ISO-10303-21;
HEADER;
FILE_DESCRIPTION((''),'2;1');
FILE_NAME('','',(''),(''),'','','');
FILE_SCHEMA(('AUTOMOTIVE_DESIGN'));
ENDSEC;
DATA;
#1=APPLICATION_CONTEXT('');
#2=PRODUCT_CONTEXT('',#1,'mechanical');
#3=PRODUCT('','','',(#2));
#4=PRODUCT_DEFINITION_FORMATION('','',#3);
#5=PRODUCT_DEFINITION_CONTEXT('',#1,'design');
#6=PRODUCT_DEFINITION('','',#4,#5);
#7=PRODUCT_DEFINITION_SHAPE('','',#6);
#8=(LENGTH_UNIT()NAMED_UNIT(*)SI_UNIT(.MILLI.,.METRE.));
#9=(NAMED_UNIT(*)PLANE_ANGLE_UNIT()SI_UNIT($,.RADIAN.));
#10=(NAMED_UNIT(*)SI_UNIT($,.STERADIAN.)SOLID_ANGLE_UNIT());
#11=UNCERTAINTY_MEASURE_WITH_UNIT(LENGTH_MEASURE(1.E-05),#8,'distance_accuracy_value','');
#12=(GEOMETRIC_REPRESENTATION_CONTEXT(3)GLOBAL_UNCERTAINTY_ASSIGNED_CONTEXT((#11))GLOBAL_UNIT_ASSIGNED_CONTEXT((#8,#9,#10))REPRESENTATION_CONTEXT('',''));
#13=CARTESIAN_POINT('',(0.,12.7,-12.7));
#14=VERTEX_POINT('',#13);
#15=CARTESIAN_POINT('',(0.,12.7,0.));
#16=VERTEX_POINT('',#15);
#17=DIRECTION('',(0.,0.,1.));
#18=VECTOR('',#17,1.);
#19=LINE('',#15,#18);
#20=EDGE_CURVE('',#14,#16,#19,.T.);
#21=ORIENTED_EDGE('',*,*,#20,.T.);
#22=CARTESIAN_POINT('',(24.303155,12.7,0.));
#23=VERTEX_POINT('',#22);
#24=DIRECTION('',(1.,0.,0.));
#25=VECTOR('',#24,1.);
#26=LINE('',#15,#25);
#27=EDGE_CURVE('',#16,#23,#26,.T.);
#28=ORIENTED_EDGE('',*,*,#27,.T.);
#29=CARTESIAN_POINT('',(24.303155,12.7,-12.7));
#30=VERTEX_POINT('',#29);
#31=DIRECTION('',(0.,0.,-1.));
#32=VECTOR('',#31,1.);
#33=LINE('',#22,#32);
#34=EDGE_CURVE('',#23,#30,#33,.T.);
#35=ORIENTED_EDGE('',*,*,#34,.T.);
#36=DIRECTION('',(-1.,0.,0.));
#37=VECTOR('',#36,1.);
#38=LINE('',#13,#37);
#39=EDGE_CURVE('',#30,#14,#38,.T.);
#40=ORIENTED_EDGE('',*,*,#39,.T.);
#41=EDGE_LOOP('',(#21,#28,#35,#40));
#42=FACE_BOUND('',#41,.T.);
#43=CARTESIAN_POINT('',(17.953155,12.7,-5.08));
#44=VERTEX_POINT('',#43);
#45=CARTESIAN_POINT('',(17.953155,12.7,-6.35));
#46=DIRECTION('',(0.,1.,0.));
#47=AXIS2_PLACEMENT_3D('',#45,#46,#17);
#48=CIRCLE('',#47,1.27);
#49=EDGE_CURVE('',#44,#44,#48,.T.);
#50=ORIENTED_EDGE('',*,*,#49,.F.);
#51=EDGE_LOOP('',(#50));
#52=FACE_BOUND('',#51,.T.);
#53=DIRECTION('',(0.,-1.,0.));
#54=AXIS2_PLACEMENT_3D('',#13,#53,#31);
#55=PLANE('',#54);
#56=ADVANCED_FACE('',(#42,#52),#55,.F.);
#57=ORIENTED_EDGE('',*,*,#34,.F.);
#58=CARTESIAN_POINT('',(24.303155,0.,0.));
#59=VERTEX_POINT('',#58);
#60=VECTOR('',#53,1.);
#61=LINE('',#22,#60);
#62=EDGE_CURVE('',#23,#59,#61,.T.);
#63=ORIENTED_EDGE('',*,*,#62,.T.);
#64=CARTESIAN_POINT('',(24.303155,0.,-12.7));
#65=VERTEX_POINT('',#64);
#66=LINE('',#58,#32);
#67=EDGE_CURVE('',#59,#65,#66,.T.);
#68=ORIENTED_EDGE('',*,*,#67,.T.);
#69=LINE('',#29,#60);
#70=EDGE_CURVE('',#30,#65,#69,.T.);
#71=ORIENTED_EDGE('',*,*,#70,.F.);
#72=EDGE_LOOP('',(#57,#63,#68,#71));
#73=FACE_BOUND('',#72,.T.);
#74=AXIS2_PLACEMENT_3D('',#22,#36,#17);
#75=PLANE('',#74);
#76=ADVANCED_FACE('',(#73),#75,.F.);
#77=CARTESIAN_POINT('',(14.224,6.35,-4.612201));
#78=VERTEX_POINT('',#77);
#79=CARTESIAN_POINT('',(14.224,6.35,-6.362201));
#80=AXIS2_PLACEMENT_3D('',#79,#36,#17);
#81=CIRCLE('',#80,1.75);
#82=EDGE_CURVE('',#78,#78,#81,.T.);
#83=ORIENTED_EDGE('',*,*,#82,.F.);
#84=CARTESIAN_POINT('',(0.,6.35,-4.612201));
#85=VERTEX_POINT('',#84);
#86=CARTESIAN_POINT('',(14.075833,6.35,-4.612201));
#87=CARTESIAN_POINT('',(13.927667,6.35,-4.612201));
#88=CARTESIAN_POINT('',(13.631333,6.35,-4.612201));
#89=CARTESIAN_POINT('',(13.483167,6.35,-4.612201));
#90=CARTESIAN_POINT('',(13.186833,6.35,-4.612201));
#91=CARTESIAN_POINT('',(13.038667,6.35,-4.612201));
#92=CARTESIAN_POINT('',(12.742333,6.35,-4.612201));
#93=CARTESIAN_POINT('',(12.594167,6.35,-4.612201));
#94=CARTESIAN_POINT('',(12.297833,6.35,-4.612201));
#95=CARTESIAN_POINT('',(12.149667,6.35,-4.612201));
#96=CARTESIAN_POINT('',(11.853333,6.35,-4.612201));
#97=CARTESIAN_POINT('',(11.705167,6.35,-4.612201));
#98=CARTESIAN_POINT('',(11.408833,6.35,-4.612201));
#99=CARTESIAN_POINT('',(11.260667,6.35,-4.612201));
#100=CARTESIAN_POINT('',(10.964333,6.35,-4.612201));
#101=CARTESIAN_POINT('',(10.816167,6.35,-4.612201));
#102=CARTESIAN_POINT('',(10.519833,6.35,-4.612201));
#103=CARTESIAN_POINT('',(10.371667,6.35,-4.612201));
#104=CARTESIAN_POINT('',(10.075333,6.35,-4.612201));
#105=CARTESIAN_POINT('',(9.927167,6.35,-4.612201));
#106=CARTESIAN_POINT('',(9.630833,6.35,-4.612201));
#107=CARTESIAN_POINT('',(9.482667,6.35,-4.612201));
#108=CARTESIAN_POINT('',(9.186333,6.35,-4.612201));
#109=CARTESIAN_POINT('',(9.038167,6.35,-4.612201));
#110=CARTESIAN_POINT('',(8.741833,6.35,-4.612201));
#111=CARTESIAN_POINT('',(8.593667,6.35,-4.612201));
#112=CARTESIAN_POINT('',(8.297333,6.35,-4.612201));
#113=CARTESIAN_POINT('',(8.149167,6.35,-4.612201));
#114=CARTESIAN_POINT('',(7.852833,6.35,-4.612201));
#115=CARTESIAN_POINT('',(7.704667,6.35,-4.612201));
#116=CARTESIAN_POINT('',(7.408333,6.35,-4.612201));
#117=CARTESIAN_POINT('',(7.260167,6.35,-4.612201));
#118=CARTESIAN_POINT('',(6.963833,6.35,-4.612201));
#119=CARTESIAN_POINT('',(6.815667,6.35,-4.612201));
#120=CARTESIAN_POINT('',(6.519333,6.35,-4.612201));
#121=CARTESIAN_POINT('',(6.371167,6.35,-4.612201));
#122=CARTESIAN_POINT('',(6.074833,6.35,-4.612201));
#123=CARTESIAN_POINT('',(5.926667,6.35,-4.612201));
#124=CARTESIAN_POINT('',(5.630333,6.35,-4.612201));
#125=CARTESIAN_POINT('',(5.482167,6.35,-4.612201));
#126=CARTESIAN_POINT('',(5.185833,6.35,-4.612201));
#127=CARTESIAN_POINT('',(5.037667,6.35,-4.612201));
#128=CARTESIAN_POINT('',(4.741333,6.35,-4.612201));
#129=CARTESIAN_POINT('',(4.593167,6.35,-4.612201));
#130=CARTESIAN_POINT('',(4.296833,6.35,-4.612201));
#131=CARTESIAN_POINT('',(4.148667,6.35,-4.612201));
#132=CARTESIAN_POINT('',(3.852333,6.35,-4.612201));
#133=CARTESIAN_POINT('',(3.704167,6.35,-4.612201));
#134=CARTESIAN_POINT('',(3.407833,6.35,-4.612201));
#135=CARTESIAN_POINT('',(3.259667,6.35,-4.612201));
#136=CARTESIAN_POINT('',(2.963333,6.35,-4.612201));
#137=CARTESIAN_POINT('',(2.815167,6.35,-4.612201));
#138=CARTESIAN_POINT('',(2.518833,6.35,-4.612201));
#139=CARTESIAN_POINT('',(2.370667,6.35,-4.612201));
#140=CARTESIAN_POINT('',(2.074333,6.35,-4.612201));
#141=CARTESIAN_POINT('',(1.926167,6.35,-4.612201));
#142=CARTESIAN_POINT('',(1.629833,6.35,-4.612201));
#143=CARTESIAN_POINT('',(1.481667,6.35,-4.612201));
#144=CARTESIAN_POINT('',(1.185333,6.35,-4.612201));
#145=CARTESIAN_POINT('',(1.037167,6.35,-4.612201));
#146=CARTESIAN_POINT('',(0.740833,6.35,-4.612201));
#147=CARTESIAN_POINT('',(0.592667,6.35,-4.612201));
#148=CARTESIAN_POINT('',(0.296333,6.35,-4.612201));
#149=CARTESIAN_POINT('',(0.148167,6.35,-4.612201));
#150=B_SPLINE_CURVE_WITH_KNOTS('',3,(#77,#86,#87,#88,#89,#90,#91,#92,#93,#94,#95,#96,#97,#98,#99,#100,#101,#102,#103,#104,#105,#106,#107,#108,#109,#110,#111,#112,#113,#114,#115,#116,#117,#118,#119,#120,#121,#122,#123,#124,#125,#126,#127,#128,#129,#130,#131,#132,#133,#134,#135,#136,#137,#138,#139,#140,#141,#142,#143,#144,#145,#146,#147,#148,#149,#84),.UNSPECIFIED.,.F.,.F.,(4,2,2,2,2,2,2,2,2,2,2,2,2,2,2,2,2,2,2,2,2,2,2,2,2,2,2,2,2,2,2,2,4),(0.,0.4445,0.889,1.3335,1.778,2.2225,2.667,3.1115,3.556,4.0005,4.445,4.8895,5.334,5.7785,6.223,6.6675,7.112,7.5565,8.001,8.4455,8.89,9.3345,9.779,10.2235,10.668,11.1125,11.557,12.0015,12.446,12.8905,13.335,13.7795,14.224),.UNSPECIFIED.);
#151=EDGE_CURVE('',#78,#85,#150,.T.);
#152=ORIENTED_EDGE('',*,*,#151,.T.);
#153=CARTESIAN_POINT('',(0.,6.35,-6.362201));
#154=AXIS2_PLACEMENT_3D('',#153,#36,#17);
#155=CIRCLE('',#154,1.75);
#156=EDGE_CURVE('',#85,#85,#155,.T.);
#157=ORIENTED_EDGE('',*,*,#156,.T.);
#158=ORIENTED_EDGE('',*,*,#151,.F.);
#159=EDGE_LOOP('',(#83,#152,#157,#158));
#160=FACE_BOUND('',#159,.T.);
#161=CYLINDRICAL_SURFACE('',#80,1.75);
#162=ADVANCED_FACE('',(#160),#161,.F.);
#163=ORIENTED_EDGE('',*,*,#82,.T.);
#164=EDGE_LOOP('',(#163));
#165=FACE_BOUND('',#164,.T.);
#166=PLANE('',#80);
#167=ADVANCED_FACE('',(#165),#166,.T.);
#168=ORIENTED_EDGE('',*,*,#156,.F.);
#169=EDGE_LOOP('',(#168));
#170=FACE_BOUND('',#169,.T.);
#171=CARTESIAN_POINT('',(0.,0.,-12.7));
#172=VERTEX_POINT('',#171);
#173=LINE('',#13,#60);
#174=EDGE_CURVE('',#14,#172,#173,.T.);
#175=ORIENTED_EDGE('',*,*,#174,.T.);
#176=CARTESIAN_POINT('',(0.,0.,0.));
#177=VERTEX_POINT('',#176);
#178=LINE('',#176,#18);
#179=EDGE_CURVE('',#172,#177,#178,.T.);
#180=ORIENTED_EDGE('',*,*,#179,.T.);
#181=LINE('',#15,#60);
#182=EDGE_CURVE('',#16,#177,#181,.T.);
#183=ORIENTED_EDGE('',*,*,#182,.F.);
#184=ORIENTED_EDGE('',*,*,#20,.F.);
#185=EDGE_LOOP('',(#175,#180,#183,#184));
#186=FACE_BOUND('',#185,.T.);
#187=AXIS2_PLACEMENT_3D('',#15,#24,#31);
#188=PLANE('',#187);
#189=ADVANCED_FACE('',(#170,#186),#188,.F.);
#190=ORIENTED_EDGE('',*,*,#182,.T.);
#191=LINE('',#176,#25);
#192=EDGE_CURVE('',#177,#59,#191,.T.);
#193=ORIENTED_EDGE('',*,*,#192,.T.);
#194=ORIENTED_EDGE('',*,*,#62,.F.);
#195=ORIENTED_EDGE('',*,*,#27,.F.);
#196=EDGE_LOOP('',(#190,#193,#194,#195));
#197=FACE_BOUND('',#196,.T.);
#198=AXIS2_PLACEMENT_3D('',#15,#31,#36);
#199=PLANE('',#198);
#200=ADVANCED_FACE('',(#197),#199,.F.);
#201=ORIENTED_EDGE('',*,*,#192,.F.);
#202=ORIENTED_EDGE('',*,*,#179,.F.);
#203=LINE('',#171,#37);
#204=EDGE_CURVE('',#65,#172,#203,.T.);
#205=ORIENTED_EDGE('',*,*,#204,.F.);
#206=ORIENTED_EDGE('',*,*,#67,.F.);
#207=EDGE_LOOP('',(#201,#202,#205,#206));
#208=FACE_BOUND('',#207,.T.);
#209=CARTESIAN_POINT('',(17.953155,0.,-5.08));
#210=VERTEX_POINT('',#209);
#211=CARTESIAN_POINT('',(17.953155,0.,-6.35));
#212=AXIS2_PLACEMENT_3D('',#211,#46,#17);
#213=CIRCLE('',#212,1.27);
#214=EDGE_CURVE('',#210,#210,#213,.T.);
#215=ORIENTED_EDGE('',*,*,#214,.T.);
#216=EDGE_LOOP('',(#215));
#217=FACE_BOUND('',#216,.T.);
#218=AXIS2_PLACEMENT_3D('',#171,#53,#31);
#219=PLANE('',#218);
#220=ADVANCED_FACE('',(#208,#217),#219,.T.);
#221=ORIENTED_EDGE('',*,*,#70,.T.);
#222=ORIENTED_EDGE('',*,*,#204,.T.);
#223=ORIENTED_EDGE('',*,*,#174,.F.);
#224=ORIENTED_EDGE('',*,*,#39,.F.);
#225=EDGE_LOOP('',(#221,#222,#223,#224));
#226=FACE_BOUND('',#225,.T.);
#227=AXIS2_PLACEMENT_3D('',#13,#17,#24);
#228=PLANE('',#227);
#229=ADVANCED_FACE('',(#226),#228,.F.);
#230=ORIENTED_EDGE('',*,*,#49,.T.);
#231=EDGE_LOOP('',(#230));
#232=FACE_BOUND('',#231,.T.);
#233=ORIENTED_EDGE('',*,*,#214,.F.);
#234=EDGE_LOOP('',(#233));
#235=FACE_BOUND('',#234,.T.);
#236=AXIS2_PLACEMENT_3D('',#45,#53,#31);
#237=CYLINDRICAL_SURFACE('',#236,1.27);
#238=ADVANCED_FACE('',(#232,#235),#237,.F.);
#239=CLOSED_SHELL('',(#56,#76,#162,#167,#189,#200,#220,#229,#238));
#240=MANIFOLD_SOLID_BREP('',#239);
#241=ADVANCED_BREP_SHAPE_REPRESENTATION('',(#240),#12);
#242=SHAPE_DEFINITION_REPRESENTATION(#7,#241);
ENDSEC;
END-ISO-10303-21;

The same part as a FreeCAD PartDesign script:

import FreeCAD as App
import Part
import Sketcher
Q = App.Units.Quantity


def add_polygon(sketch, points):
    """Adds a closed chain of lines whose ends are joined by coincident constraints."""
    first, n = sketch.GeometryCount, len(points)
    for a, b in zip(points, points[1:] + points[:1]):
        sketch.addGeometry(Part.LineSegment(App.Vector(*a, 0), App.Vector(*b, 0)), False)
    for i in range(n):
        sketch.addConstraint(Sketcher.Constraint("Coincident", first + i, 2, first + (i + 1) % n, 1))

doc = App.newDocument("Part")
body = doc.addObject("PartDesign::Body", "Body")

# Sketch on XZ plane
sketch1 = body.newObject("Sketcher::SketchObject", "Sketch")
sketch1.AttachmentSupport = (doc.getObject("XZ_Plane"), [""])
sketch1.MapMode = "FlatFace"
add_polygon(sketch1, [(0, -12.7), (0, 0), (24.303155, 0), (24.303155, -12.7)])  # lines 0-3
sketch1.addConstraint(Sketcher.Constraint("Vertical", 0))
sketch1.addConstraint(Sketcher.Constraint("Horizontal", 1))
sketch1.addConstraint(Sketcher.Constraint("Vertical", 2))
sketch1.addConstraint(Sketcher.Constraint("Horizontal", 3))
sketch1.addConstraint(Sketcher.Constraint("Coincident", 0, 2, -1, 1))
sketch1.addConstraint(Sketcher.Constraint("DistanceY", 0, 1, 0, 2, Q("0.5 in")))
sketch1.addConstraint(Sketcher.Constraint("DistanceX", 1, 1, 1, 2, Q("24.303155 mm")))
pad1 = body.newObject("PartDesign::Pad", "Pad")
pad1.Profile = sketch1
pad1.Length = Q("0.5 in")
pad1.Reversed = True

# Sketch on YZ plane
sketch2 = body.newObject("Sketcher::SketchObject", "Sketch001")
sketch2.AttachmentSupport = (doc.getObject("YZ_Plane"), [""])
sketch2.MapMode = "FlatFace"
sketch2.addGeometry(Part.Circle(App.Vector(6.35, -6.362201, 0), App.Vector(0, 0, 1), 1.75), False)
sketch2.addConstraint(Sketcher.Constraint("Diameter", 0, Q("3.5 mm")))
sketch2.addConstraint(Sketcher.Constraint("DistanceX", -1, 1, 0, 3, Q("0.25 in")))
sketch2.addConstraint(Sketcher.Constraint("DistanceY", 0, 3, -1, 1, Q("6.362201 mm")))
pocket1 = body.newObject("PartDesign::Pocket", "Pocket")
pocket1.Profile = sketch2
pocket1.Length = Q("0.56 in")
pocket1.Reversed = True

# Sketch on XZ plane
sketch3 = body.newObject("Sketcher::SketchObject", "Sketch002")
sketch3.AttachmentSupport = (doc.getObject("XZ_Plane"), [""])
sketch3.MapMode = "FlatFace"
sketch3.addGeometry(Part.Circle(App.Vector(17.953155, -6.35, 0), App.Vector(0, 0, 1), 1.27), False)
sketch3.addConstraint(Sketcher.Constraint("Diameter", 0, Q("0.1 in")))
sketch3.addConstraint(Sketcher.Constraint("DistanceY", 0, 3, -1, 1, Q("0.25 in")))
sketch3.addConstraint(Sketcher.Constraint("DistanceX", -1, 1, 0, 3, Q("17.953155 mm")))
pocket2 = body.newObject("PartDesign::Pocket", "Pocket001")
pocket2.Profile = sketch3
pocket2.Type = "ThroughAll"

doc.recompute()
